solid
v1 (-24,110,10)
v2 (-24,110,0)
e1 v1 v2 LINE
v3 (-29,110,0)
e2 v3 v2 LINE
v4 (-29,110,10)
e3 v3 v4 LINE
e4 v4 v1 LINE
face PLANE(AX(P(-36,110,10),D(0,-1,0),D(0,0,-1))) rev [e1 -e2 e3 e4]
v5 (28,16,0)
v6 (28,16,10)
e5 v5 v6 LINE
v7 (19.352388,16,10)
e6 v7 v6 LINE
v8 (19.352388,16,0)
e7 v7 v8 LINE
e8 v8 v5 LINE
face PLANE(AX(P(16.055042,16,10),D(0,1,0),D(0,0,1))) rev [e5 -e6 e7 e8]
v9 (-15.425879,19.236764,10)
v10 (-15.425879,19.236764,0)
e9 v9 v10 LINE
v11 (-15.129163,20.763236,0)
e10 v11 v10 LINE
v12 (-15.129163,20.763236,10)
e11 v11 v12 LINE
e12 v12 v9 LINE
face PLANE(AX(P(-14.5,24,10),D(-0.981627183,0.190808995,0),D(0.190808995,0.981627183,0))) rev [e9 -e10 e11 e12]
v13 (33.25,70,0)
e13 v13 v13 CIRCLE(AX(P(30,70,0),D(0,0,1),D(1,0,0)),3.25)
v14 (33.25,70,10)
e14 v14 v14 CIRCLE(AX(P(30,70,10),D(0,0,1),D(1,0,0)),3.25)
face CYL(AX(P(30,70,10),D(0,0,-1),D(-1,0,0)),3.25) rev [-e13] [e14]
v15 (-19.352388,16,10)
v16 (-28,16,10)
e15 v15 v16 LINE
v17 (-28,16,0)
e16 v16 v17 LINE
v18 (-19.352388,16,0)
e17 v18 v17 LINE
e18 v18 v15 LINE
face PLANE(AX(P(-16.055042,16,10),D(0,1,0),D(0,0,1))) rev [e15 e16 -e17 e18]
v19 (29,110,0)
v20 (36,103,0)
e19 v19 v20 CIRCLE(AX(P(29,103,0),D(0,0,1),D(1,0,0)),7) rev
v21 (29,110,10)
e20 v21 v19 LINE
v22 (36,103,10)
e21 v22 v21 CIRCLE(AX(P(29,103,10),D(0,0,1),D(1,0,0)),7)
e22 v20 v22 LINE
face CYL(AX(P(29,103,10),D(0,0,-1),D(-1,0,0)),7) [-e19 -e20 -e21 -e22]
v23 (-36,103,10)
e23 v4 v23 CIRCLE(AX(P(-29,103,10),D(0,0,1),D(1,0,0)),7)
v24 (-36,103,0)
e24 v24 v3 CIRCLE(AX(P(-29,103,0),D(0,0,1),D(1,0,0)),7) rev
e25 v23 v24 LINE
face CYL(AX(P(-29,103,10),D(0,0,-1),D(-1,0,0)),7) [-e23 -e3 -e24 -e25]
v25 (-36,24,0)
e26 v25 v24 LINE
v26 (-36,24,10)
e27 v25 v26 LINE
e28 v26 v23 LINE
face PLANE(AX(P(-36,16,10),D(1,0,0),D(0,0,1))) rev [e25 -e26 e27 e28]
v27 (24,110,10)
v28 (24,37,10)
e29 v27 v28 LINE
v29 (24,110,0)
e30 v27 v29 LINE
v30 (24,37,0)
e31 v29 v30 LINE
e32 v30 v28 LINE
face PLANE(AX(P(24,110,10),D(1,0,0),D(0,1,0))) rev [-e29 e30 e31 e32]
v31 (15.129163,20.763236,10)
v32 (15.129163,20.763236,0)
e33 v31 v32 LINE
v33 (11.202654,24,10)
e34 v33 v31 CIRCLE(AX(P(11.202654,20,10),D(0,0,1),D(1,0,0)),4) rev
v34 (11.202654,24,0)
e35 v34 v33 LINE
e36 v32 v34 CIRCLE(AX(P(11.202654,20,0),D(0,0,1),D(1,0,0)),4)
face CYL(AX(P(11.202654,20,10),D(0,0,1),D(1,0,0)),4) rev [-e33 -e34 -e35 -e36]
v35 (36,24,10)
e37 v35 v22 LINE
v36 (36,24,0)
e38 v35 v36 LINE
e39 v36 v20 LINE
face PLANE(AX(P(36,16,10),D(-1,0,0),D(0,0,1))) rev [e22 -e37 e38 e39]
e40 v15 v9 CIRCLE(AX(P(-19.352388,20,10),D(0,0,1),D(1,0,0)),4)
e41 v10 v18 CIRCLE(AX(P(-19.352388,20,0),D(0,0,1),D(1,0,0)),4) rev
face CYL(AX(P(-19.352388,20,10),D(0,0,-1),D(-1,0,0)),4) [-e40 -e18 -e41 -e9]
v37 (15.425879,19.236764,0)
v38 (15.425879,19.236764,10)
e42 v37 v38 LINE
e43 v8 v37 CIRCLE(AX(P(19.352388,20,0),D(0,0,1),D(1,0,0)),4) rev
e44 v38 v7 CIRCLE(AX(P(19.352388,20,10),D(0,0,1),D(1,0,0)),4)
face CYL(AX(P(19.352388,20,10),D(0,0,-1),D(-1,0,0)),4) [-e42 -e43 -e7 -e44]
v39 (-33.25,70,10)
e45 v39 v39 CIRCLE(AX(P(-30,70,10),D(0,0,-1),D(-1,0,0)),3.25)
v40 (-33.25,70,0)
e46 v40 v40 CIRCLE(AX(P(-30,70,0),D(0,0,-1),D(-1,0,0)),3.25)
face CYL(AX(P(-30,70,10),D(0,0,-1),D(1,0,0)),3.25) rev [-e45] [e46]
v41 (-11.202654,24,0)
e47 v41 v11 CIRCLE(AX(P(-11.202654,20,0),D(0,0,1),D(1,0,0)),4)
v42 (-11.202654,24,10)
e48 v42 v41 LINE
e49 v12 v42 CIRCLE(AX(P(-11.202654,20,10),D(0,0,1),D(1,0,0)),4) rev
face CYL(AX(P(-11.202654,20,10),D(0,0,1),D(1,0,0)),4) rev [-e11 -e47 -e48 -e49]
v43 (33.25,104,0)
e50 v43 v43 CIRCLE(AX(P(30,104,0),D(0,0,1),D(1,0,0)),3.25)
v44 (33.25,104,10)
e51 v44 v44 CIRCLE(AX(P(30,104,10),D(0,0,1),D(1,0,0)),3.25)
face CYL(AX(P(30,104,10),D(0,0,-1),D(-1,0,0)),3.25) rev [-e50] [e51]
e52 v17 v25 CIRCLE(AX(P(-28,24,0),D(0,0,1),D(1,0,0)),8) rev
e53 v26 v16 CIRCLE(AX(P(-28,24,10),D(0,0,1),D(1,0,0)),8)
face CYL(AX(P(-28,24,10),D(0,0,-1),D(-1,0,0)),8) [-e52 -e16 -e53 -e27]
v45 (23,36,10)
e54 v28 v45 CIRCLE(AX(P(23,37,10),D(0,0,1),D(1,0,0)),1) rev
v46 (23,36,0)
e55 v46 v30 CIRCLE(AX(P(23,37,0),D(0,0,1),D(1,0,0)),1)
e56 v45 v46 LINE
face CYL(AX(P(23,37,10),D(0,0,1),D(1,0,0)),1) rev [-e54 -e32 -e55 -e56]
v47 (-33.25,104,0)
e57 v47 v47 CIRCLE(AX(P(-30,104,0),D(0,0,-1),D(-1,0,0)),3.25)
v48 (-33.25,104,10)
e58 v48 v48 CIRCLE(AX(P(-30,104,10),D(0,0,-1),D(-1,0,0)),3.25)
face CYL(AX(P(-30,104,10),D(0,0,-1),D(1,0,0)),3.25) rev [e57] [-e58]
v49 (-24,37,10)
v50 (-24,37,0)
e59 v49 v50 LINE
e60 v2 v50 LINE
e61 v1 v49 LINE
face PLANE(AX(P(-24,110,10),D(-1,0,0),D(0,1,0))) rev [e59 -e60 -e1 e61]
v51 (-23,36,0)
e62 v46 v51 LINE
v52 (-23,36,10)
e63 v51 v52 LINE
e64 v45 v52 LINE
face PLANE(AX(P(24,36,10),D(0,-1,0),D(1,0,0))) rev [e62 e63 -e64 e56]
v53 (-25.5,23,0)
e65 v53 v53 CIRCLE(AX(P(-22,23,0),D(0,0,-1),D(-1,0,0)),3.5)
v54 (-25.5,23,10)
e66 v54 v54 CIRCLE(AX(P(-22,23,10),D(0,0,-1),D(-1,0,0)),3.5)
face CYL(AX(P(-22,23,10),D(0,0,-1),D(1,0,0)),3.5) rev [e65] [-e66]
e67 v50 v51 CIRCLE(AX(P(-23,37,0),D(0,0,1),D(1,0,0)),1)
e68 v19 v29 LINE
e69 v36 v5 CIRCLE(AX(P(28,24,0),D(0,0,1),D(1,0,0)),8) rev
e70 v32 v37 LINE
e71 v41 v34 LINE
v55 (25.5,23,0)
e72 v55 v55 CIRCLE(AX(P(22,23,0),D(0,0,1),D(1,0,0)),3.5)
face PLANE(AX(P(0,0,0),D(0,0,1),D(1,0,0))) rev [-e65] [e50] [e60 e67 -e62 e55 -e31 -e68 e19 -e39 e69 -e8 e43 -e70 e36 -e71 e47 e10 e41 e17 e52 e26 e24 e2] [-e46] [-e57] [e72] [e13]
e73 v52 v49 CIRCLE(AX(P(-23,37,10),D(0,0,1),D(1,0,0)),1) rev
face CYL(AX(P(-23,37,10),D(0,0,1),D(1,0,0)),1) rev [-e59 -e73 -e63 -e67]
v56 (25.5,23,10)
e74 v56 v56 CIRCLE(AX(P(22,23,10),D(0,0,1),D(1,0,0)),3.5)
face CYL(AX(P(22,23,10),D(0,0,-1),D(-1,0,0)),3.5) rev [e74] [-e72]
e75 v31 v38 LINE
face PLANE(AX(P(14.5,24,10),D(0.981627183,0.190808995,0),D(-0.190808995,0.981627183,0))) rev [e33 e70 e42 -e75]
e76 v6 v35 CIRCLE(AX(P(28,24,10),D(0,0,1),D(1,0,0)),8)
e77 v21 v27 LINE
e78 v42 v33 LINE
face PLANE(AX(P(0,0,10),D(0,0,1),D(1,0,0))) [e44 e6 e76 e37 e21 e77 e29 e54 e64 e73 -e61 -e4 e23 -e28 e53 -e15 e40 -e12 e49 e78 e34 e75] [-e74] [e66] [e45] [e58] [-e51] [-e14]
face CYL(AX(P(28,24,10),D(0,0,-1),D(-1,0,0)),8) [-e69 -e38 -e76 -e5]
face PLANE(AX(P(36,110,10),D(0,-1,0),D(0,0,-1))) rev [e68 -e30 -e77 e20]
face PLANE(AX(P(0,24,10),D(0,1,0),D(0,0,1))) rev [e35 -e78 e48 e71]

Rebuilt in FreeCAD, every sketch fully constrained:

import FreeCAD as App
import Part
import Sketcher
Q = App.Units.Quantity


def edges_at(feature, points):
    """Names of the edges that pass closest to the given points."""
    edges = feature.Shape.Edges
    near = lambda p: min(range(len(edges)), key=lambda i: edges[i].distToShape(Part.Vertex(*p))[0])
    return sorted({f"Edge{near(p) + 1}" for p in points})


def add_polygon(sketch, points):
    """Adds a closed chain of lines whose ends are joined by coincident constraints."""
    first, n = sketch.GeometryCount, len(points)
    for a, b in zip(points, points[1:] + points[:1]):
        sketch.addGeometry(Part.LineSegment(App.Vector(*a, 0), App.Vector(*b, 0)), False)
    for i in range(n):
        sketch.addConstraint(Sketcher.Constraint("Coincident", first + i, 2, first + (i + 1) % n, 1))

doc = App.newDocument("Part")
params = doc.addObject("Spreadsheet::Sheet", "Params")
for row, (alias, value) in enumerate([
    ("sketch1_diameter", "7 mm"),
    ("sketch1_diameter2", "6.5 mm"),
    ("sketch1_width", "24 mm"),
    ("sketch1_width2", "12 mm"),
    ("sketch1_height", "74 mm"),
    ("pad1_length", "10 mm"),
    ("fillet_radius", "4 mm"),
    ("fillet2_radius", "8 mm"),
    ("fillet3_radius", "7 mm"),
    ("fillet4_radius", "1 mm"),
], start=1):
    params.set(f"A{row}", alias)
    params.set(f"B{row}", "=" + value)
    params.setAlias(f"B{row}", alias)

body = doc.addObject("PartDesign::Body", "Body")

sketch1 = doc.addObject("Sketcher::SketchObject", "Sketch")
body.addObject(sketch1)
sketch1.AttachmentSupport = (doc.XY_Plane, [""])
sketch1.MapMode = "FlatFace"
add_polygon(sketch1, [(24, 110), (24, 36), (0, 36), (0, 24), (14.5, 24), (16.1, 16), (36, 16), (36, 110)])
sketch1.addGeometry(Part.Circle(App.Vector(22, 23, 0), App.Vector(0, 0, 1), 3.5), False)
sketch1.addGeometry(Part.Circle(App.Vector(30, 70, 0), App.Vector(0, 0, 1), 3.2), False)
sketch1.addGeometry(Part.Circle(App.Vector(30, 104, 0), App.Vector(0, 0, 1), 3.2), False)
sketch1.addConstraint([
    Sketcher.Constraint("Vertical", 0),
    Sketcher.Constraint("Horizontal", 1),
    Sketcher.Constraint("Vertical", 2),
    Sketcher.Constraint("Horizontal", 3),
    Sketcher.Constraint("Horizontal", 5),
    Sketcher.Constraint("Vertical", 6),
    Sketcher.Constraint("Horizontal", 7),
    Sketcher.Constraint("Equal", 9, 10),
    Sketcher.Constraint("PointOnObject", 1, 2, -2),
    Sketcher.Constraint("Vertical", 9, 3, 10, 3),
    Sketcher.Constraint("Equal", 7, 2),
    Sketcher.Constraint("Diameter", 8, 7.0),
    Sketcher.Constraint("Diameter", 9, 6.5),
    Sketcher.Constraint("DistanceX", 1, 2, 1, 1, 24.0),
    Sketcher.Constraint("DistanceX", 7, 2, 7, 1, 12.0),
    Sketcher.Constraint("DistanceY", 0, 2, 0, 1, 74.0),
    Sketcher.Constraint("DistanceY", 6, 1, 6, 2, 94.0),
    Sketcher.Constraint("Angle", 4, Q("-79 deg")),
    Sketcher.Constraint("DistanceX", 3, 1, 3, 2, 14.5),
    Sketcher.Constraint("DistanceX", -1, 1, 8, 3, 22.0),
    Sketcher.Constraint("DistanceY", -1, 1, 8, 3, 23.0),
    Sketcher.Constraint("DistanceX", -1, 1, 9, 3, 30.0),
    Sketcher.Constraint("DistanceY", -1, 1, 9, 3, 70.0),
    Sketcher.Constraint("DistanceY", -1, 1, 10, 3, 104.0),
    Sketcher.Constraint("DistanceY", -1, 1, 0, 2, 36.0),
])
sketch1.setExpression("Constraints[19]", "Params.sketch1_diameter")
sketch1.setExpression("Constraints[20]", "Params.sketch1_diameter2")
sketch1.setExpression("Constraints[21]", "Params.sketch1_width")
sketch1.setExpression("Constraints[22]", "Params.sketch1_width2")
sketch1.setExpression("Constraints[23]", "Params.sketch1_height")
pad1 = doc.addObject("PartDesign::Pad", "Pad")
body.addObject(pad1)
pad1.Profile = sketch1
pad1.setExpression("Length", "Params.pad1_length")
doc.recompute()

mirrored = doc.addObject("PartDesign::Mirrored", "Mirrored")
body.addObject(mirrored)
mirrored.Originals = [pad1]
mirrored.MirrorPlane = (doc.YZ_Plane, [""])
body.Tip = mirrored
doc.recompute()

fillet = doc.addObject("PartDesign::Fillet", "Fillet")
body.addObject(fillet)
fillet.Base = (mirrored, edges_at(mirrored, [
    (16.055, 16, 5),
    (14.5, 24, 5),
    (-14.5, 24, 5),
    (-16.055, 16, 5),
]))
fillet.setExpression("Radius", "Params.fillet_radius")
doc.recompute()

fillet2 = doc.addObject("PartDesign::Fillet", "Fillet001")
body.addObject(fillet2)
fillet2.Base = (fillet, edges_at(fillet, [(36, 16, 5), (-36, 16, 5)]))
fillet2.setExpression("Radius", "Params.fillet2_radius")
doc.recompute()

fillet3 = doc.addObject("PartDesign::Fillet", "Fillet002")
body.addObject(fillet3)
fillet3.Base = (fillet2, edges_at(fillet2, [(36, 110, 5), (-36, 110, 5)]))
fillet3.setExpression("Radius", "Params.fillet3_radius")
doc.recompute()

fillet4 = doc.addObject("PartDesign::Fillet", "Fillet003")
body.addObject(fillet4)
fillet4.Base = (fillet3, edges_at(fillet3, [(24, 36, 5), (-24, 36, 5)]))
fillet4.setExpression("Radius", "Params.fillet4_radius")

doc.recompute()
